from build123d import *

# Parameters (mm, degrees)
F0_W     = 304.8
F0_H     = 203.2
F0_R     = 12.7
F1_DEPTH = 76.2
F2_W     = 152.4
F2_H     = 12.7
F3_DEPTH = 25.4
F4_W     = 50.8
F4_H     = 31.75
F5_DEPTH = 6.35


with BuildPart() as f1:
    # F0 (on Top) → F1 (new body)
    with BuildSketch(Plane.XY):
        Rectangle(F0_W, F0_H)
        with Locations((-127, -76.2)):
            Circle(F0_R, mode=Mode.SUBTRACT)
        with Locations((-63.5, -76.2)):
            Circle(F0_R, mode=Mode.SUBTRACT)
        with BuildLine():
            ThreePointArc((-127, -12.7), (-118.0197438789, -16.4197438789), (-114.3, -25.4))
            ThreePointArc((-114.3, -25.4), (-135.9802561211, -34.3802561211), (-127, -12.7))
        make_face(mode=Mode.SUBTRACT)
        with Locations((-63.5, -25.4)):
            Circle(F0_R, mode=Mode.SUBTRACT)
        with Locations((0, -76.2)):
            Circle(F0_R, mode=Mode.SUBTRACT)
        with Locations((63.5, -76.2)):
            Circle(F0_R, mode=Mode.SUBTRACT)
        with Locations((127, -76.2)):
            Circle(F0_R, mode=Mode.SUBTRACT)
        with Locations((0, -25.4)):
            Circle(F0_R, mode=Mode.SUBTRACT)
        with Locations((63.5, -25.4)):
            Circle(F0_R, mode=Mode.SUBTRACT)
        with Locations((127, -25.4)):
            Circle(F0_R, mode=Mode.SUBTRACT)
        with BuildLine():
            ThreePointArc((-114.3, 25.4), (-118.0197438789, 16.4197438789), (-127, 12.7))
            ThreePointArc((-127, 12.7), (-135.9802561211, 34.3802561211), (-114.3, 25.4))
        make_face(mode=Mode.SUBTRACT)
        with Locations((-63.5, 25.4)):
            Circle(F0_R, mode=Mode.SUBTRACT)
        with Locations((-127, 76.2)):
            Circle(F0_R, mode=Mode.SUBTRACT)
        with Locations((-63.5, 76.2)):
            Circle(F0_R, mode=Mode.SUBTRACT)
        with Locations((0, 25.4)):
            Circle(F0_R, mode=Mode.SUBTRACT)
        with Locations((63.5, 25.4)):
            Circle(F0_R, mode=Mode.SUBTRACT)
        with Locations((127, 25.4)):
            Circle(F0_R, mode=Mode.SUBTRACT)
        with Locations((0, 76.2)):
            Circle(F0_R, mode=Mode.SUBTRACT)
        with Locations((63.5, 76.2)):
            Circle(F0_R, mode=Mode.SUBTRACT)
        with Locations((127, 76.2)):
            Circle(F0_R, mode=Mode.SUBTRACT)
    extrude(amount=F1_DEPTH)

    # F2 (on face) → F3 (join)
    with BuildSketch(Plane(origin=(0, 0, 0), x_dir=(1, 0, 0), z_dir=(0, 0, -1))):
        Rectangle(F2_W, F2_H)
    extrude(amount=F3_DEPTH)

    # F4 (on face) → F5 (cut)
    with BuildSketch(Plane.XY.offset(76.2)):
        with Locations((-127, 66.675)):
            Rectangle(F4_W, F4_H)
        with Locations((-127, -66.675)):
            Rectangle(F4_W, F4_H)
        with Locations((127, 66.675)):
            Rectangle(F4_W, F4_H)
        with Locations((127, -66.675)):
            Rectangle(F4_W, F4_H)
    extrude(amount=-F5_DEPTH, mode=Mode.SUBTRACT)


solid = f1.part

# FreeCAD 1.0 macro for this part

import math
import FreeCAD as App
import Part
import Sketcher
Q = App.Units.Quantity

doc = App.newDocument("Part")
body = doc.addObject("PartDesign::Body", "Body")

sketch1 = body.newObject("Sketcher::SketchObject", "Sketch")
sketch1.AttachmentSupport = (doc.getObject("XY_Plane"), [""])
sketch1.MapMode = "FlatFace"
sketch1.addGeometry([
    Part.LineSegment(App.Vector(-152.4, 101.6, 0), App.Vector(-152.4, -101.6, 0)),
    Part.LineSegment(App.Vector(-152.4, -101.6, 0), App.Vector(152.4, -101.6, 0)),
    Part.LineSegment(App.Vector(152.4, -101.6, 0), App.Vector(152.4, 101.6, 0)),
    Part.LineSegment(App.Vector(152.4, 101.6, 0), App.Vector(-152.4, 101.6, 0)),
    Part.Circle(App.Vector(-127, -76.2, 0), App.Vector(0, 0, 1), 12.7),
    Part.Circle(App.Vector(-63.5, -76.2, 0), App.Vector(0, 0, 1), 12.7),
    Part.ArcOfCircle(Part.Circle(App.Vector(-127, -25.4, 0), App.Vector(0, 0, 1), 12.7), math.radians(90), math.radians(360)),
    Part.ArcOfCircle(Part.Circle(App.Vector(-127, -25.4, 0), App.Vector(0, 0, 1), 12.7), math.radians(0), math.radians(90)),
    Part.Circle(App.Vector(-63.5, -25.4, 0), App.Vector(0, 0, 1), 12.7),
    Part.Circle(App.Vector(0, -76.2, 0), App.Vector(0, 0, 1), 12.7),
    Part.Circle(App.Vector(63.5, -76.2, 0), App.Vector(0, 0, 1), 12.7),
    Part.Circle(App.Vector(127, -76.2, 0), App.Vector(0, 0, 1), 12.7),
    Part.Circle(App.Vector(0, -25.4, 0), App.Vector(0, 0, 1), 12.7),
    Part.Circle(App.Vector(63.5, -25.4, 0), App.Vector(0, 0, 1), 12.7),
    Part.Circle(App.Vector(127, -25.4, 0), App.Vector(0, 0, 1), 12.7),
    Part.ArcOfCircle(Part.Circle(App.Vector(-127, 25.4, 0), App.Vector(0, 0, 1), 12.7), math.radians(0), math.radians(270)),
    Part.ArcOfCircle(Part.Circle(App.Vector(-127, 25.4, 0), App.Vector(0, 0, 1), 12.7), math.radians(-90), math.radians(0)),
    Part.Circle(App.Vector(-63.5, 25.4, 0), App.Vector(0, 0, 1), 12.7),
    Part.Circle(App.Vector(-127, 76.2, 0), App.Vector(0, 0, 1), 12.7),
    Part.Circle(App.Vector(-63.5, 76.2, 0), App.Vector(0, 0, 1), 12.7),
    Part.Circle(App.Vector(0, 25.4, 0), App.Vector(0, 0, 1), 12.7),
    Part.Circle(App.Vector(63.5, 25.4, 0), App.Vector(0, 0, 1), 12.7),
    Part.Circle(App.Vector(127, 25.4, 0), App.Vector(0, 0, 1), 12.7),
    Part.Circle(App.Vector(0, 76.2, 0), App.Vector(0, 0, 1), 12.7),
    Part.Circle(App.Vector(63.5, 76.2, 0), App.Vector(0, 0, 1), 12.7),
    Part.Circle(App.Vector(127, 76.2, 0), App.Vector(0, 0, 1), 12.7),
], False)
sketch1.addConstraint([
    Sketcher.Constraint("Coincident", 0, 2, 1, 1),
    Sketcher.Constraint("Coincident", 1, 2, 2, 1),
    Sketcher.Constraint("Coincident", 2, 2, 3, 1),
    Sketcher.Constraint("Coincident", 3, 2, 0, 1),
    Sketcher.Constraint("Tangent", 6, 1, 7, 2),
    Sketcher.Constraint("Coincident", 7, 1, 6, 2),
    Sketcher.Constraint("Tangent", 15, 1, 16, 2),
    Sketcher.Constraint("Coincident", 16, 1, 15, 2),
    Sketcher.Constraint("Vertical", 0),
    Sketcher.Constraint("Horizontal", 1),
    Sketcher.Constraint("Vertical", 2),
    Sketcher.Constraint("Horizontal", 3),
    Sketcher.Constraint("Equal", 4, 5),
    Sketcher.Constraint("Equal", 5, 6),
    Sketcher.Constraint("Equal", 7, 8),
    Sketcher.Constraint("Equal", 8, 9),
    Sketcher.Constraint("Equal", 9, 10),
    Sketcher.Constraint("Equal", 10, 11),
    Sketcher.Constraint("Equal", 11, 12),
    Sketcher.Constraint("Equal", 12, 13),
    Sketcher.Constraint("Equal", 13, 14),
    Sketcher.Constraint("Equal", 14, 15),
    Sketcher.Constraint("Equal", 16, 17),
    Sketcher.Constraint("Equal", 17, 18),
    Sketcher.Constraint("Equal", 18, 19),
    Sketcher.Constraint("Equal", 19, 20),
    Sketcher.Constraint("Equal", 20, 21),
    Sketcher.Constraint("Equal", 21, 22),
    Sketcher.Constraint("Equal", 22, 23),
    Sketcher.Constraint("Equal", 23, 24),
    Sketcher.Constraint("Equal", 24, 25),
    Sketcher.Constraint("Symmetric", 14, 3, 15, 3, -1, 1),
    Sketcher.Constraint("Symmetric", 13, 3, 17, 3, -1, 1),
    Sketcher.Constraint("Symmetric", 11, 3, 18, 3, -1, 1),
    Sketcher.Constraint("Symmetric", 10, 3, 19, 3, -1, 1),
    Sketcher.Constraint("Symmetric", 12, 3, 20, 3, -1, 1),
    Sketcher.Constraint("Symmetric", 8, 3, 21, 3, -1, 1),
    Sketcher.Constraint("Symmetric", 6, 3, 22, 3, -1, 1),
    Sketcher.Constraint("Symmetric", 9, 3, 23, 3, -1, 1),
    Sketcher.Constraint("Symmetric", 5, 3, 24, 3, -1, 1),
    Sketcher.Constraint("Symmetric", 4, 3, 25, 3, -1, 1),
    Sketcher.Constraint("Symmetric", 0, 2, 2, 2, -1, 1),
    Sketcher.Constraint("Symmetric", 5, 3, 10, 3, -2),
    Sketcher.Constraint("Symmetric", 4, 3, 11, 3, -2),
    Sketcher.Constraint("Symmetric", 8, 3, 13, 3, -2),
    Sketcher.Constraint("Symmetric", 6, 3, 14, 3, -2),
    Sketcher.Constraint("PointOnObject", 9, 3, -2),
    Sketcher.Constraint("PointOnObject", 12, 3, -2),
    Sketcher.Constraint("Horizontal", 4, 3, 5, 3),
    Sketcher.Constraint("Horizontal", 7, 3, 8, 3),
    Sketcher.Constraint("Horizontal", 5, 3, 9, 3),
    Sketcher.Constraint("Horizontal", 8, 3, 12, 3),
    Sketcher.Constraint("Horizontal", 14, 3, 7, 1),
    Sketcher.Constraint("Horizontal", 22, 3, 15, 1),
    Sketcher.Constraint("Vertical", 4, 3, 6, 3),
    Sketcher.Constraint("Vertical", 5, 3, 8, 3),
    Sketcher.Constraint("Vertical", 18, 3, 6, 1),
    Sketcher.Constraint("Vertical", 6, 1, 16, 1),
    Sketcher.Constraint("Diameter", 4, Q("1 in")),
    Sketcher.Constraint("DistanceX", 1, 1, 1, 2, Q("12 in")),
    Sketcher.Constraint("DistanceY", 0, 2, 0, 1, Q("8 in")),
    Sketcher.Constraint("DistanceX", 4, 3, -1, 1, Q("5 in")),
    Sketcher.Constraint("DistanceY", 4, 3, -1, 1, Q("3 in")),
    Sketcher.Constraint("DistanceY", 6, 3, -1, 1, Q("1 in")),
    Sketcher.Constraint("DistanceX", 5, 3, 10, 3, Q("5 in")),
])
pad1 = body.newObject("PartDesign::Pad", "Pad")
pad1.Profile = sketch1
pad1.Length = Q("3 in")

sketch2 = body.newObject("Sketcher::SketchObject", "Sketch001")
sketch2.AttachmentSupport = (doc.getObject("XY_Plane"), [""])
sketch2.MapMode = "FlatFace"
sketch2.addGeometry([
    Part.LineSegment(App.Vector(-76.2, -6.35, 0), App.Vector(-76.2, 6.35, 0)),
    Part.LineSegment(App.Vector(-76.2, 6.35, 0), App.Vector(76.2, 6.35, 0)),
    Part.LineSegment(App.Vector(76.2, 6.35, 0), App.Vector(76.2, -6.35, 0)),
    Part.LineSegment(App.Vector(76.2, -6.35, 0), App.Vector(-76.2, -6.35, 0)),
], False)
sketch2.addConstraint([
    Sketcher.Constraint("Coincident", 0, 2, 1, 1),
    Sketcher.Constraint("Coincident", 1, 2, 2, 1),
    Sketcher.Constraint("Coincident", 2, 2, 3, 1),
    Sketcher.Constraint("Coincident", 3, 2, 0, 1),
    Sketcher.Constraint("Vertical", 0),
    Sketcher.Constraint("Horizontal", 1),
    Sketcher.Constraint("Vertical", 2),
    Sketcher.Constraint("Horizontal", 3),
    Sketcher.Constraint("Symmetric", 0, 2, 2, 2, -1, 1),
    Sketcher.Constraint("DistanceX", 1, 1, 1, 2, Q("6 in")),
    Sketcher.Constraint("DistanceY", 0, 1, 0, 2, Q("0.5 in")),
])
pad2 = body.newObject("PartDesign::Pad", "Pad001")
pad2.Profile = sketch2
pad2.Length = Q("1 in")
pad2.Reversed = True

sketch3 = body.newObject("Sketcher::SketchObject", "Sketch002")
sketch3.AttachmentSupport = (doc.getObject("XY_Plane"), [""])
sketch3.MapMode = "FlatFace"
sketch3.AttachmentOffset = App.Placement(App.Vector(0, 0, 3 * 25.4), App.Rotation())
sketch3.addGeometry([
    Part.LineSegment(App.Vector(-152.4, 82.55, 0), App.Vector(-152.4, 50.8, 0)),
    Part.LineSegment(App.Vector(-152.4, 50.8, 0), App.Vector(-101.6, 50.8, 0)),
    Part.LineSegment(App.Vector(-101.6, 50.8, 0), App.Vector(-101.6, 82.55, 0)),
    Part.LineSegment(App.Vector(-101.6, 82.55, 0), App.Vector(-152.4, 82.55, 0)),
    Part.LineSegment(App.Vector(-152.4, -50.8, 0), App.Vector(-152.4, -82.55, 0)),
    Part.LineSegment(App.Vector(-152.4, -82.55, 0), App.Vector(-101.6, -82.55, 0)),
    Part.LineSegment(App.Vector(-101.6, -82.55, 0), App.Vector(-101.6, -50.8, 0)),
    Part.LineSegment(App.Vector(-101.6, -50.8, 0), App.Vector(-152.4, -50.8, 0)),
    Part.LineSegment(App.Vector(101.6, 82.55, 0), App.Vector(101.6, 50.8, 0)),
    Part.LineSegment(App.Vector(101.6, 50.8, 0), App.Vector(152.4, 50.8, 0)),
    Part.LineSegment(App.Vector(152.4, 50.8, 0), App.Vector(152.4, 82.55, 0)),
    Part.LineSegment(App.Vector(152.4, 82.55, 0), App.Vector(101.6, 82.55, 0)),
    Part.LineSegment(App.Vector(101.6, -50.8, 0), App.Vector(101.6, -82.55, 0)),
    Part.LineSegment(App.Vector(101.6, -82.55, 0), App.Vector(152.4, -82.55, 0)),
    Part.LineSegment(App.Vector(152.4, -82.55, 0), App.Vector(152.4, -50.8, 0)),
    Part.LineSegment(App.Vector(152.4, -50.8, 0), App.Vector(101.6, -50.8, 0)),
], False)
sketch3.addConstraint([
    Sketcher.Constraint("Coincident", 0, 2, 1, 1),
    Sketcher.Constraint("Coincident", 1, 2, 2, 1),
    Sketcher.Constraint("Coincident", 2, 2, 3, 1),
    Sketcher.Constraint("Coincident", 3, 2, 0, 1),
    Sketcher.Constraint("Coincident", 4, 2, 5, 1),
    Sketcher.Constraint("Coincident", 5, 2, 6, 1),
    Sketcher.Constraint("Coincident", 6, 2, 7, 1),
    Sketcher.Constraint("Coincident", 7, 2, 4, 1),
    Sketcher.Constraint("Coincident", 8, 2, 9, 1),
    Sketcher.Constraint("Coincident", 9, 2, 10, 1),
    Sketcher.Constraint("Coincident", 10, 2, 11, 1),
    Sketcher.Constraint("Coincident", 11, 2, 8, 1),
    Sketcher.Constraint("Coincident", 12, 2, 13, 1),
    Sketcher.Constraint("Coincident", 13, 2, 14, 1),
    Sketcher.Constraint("Coincident", 14, 2, 15, 1),
    Sketcher.Constraint("Coincident", 15, 2, 12, 1),
    Sketcher.Constraint("Vertical", 0),
    Sketcher.Constraint("Horizontal", 1),
    Sketcher.Constraint("Vertical", 2),
    Sketcher.Constraint("Horizontal", 3),
    Sketcher.Constraint("Vertical", 4),
    Sketcher.Constraint("Horizontal", 5),
    Sketcher.Constraint("Vertical", 6),
    Sketcher.Constraint("Horizontal", 7),
    Sketcher.Constraint("Vertical", 8),
    Sketcher.Constraint("Horizontal", 9),
    Sketcher.Constraint("Vertical", 10),
    Sketcher.Constraint("Horizontal", 11),
    Sketcher.Constraint("Vertical", 12),
    Sketcher.Constraint("Horizontal", 13),
    Sketcher.Constraint("Vertical", 14),
    Sketcher.Constraint("Horizontal", 15),
    Sketcher.Constraint("Symmetric", 6, 2, 8, 2, -1, 1),
    Sketcher.Constraint("Symmetric", 4, 2, 10, 2, -1, 1),
    Sketcher.Constraint("Symmetric", 2, 2, 12, 2, -1, 1),
    Sketcher.Constraint("Symmetric", 0, 2, 14, 2, -1, 1),
    Sketcher.Constraint("Symmetric", 1, 2, 8, 2, -2),
    Sketcher.Constraint("Symmetric", 3, 2, 10, 2, -2),
    Sketcher.Constraint("DistanceX", 1, 1, 1, 2, Q("2 in")),
    Sketcher.Constraint("DistanceX", 0, 2, -1, 1, Q("6 in")),
    Sketcher.Constraint("DistanceY", -1, 1, 0, 2, Q("2 in")),
    Sketcher.Constraint("DistanceY", 0, 2, 0, 1, Q("1.25 in")),
])
pocket1 = body.newObject("PartDesign::Pocket", "Pocket")
pocket1.Profile = sketch3
pocket1.Length = Q("0.25 in")

doc.recompute()
